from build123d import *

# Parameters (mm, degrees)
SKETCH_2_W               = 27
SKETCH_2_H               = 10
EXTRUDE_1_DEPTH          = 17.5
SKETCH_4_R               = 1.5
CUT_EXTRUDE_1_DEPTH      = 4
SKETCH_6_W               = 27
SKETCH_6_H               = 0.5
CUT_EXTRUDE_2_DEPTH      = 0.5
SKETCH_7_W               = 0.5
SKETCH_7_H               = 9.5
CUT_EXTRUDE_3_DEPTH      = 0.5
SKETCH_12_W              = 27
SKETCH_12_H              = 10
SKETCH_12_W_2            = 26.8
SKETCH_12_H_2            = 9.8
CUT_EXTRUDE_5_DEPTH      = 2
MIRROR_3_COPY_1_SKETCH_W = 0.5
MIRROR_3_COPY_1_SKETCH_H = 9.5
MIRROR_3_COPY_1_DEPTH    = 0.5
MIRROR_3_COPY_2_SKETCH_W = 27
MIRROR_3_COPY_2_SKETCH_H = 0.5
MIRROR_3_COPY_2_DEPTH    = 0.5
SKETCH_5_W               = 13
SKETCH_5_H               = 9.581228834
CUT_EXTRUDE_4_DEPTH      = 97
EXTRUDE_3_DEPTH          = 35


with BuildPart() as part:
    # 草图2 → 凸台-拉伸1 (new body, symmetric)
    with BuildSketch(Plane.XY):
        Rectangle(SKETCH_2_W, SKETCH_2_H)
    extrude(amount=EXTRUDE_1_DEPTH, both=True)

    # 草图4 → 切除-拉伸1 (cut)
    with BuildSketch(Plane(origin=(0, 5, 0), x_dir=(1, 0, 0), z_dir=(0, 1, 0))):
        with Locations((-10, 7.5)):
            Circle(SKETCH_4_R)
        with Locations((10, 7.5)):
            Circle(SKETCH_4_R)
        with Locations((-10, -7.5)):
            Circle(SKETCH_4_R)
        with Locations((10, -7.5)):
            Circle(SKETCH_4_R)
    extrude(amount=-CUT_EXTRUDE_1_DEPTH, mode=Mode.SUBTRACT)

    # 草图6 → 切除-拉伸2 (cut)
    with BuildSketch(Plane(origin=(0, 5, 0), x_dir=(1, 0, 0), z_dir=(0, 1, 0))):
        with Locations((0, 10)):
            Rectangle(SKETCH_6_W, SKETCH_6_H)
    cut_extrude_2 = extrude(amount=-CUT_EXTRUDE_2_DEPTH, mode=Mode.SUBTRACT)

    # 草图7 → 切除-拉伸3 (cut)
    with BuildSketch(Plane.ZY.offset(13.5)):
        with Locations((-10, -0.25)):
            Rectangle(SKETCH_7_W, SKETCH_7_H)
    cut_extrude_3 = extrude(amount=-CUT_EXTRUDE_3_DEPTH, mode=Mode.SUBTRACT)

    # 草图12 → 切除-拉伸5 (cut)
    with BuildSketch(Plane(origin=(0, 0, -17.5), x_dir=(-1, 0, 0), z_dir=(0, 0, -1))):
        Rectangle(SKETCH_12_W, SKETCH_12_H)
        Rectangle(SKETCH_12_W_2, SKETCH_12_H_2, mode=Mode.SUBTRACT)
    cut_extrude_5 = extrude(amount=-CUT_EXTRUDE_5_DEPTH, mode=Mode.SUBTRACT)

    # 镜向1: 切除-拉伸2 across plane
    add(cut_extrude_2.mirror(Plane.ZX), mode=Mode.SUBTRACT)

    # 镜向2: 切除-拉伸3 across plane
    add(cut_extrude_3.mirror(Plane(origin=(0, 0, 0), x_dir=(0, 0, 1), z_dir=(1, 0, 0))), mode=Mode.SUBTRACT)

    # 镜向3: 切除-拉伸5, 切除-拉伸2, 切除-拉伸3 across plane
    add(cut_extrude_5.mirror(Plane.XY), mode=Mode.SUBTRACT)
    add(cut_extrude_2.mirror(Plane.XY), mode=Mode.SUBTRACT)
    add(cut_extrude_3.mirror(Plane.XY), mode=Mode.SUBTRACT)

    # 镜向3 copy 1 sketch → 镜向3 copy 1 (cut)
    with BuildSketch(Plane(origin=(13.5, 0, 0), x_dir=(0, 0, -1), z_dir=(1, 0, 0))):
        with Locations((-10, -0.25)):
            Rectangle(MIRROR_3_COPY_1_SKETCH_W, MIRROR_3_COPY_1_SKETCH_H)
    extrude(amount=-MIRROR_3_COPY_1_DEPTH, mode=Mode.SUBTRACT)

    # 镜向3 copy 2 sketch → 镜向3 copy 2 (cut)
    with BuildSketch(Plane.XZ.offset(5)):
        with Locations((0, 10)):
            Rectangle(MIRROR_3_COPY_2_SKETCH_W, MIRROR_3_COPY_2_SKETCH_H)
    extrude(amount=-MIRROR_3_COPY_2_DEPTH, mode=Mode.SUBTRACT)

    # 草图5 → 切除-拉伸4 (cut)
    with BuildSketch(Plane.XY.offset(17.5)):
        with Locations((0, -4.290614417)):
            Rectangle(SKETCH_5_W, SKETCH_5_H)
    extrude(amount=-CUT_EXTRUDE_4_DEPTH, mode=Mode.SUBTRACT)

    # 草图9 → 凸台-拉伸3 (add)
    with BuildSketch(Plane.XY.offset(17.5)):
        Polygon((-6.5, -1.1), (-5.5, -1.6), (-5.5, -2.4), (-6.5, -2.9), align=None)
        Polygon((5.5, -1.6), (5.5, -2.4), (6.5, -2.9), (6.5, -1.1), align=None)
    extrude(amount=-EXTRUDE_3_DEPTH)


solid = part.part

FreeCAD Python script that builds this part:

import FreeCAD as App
import Part
import Sketcher
from FreeCAD import Vector
Q = App.Units.Quantity


def add_polygon(sketch, points):
    """Adds a closed chain of lines whose ends are joined by coincident constraints."""
    first, n = sketch.GeometryCount, len(points)
    for a, b in zip(points, points[1:] + points[:1]):
        sketch.addGeometry(Part.LineSegment(App.Vector(*a, 0), App.Vector(*b, 0)), False)
    for i in range(n):
        sketch.addConstraint(Sketcher.Constraint("Coincident", first + i, 2, first + (i + 1) % n, 1))

doc = App.newDocument("Part")
body = doc.addObject("PartDesign::Body", "Body")

# Sketch on XY plane
sketch1 = doc.addObject("Sketcher::SketchObject", "Sketch")
body.addObject(sketch1)
sketch1.AttachmentSupport = (doc.XY_Plane, [""])
sketch1.MapMode = "FlatFace"
add_polygon(sketch1, [(-14, 5), (-14, -5), (14, -5), (14, 5)])  # lines 0-3
sketch1.addConstraint(Sketcher.Constraint("Vertical", 0))
sketch1.addConstraint(Sketcher.Constraint("Horizontal", 1))
sketch1.addConstraint(Sketcher.Constraint("Vertical", 2))
sketch1.addConstraint(Sketcher.Constraint("Horizontal", 3))
sketch1.addConstraint(Sketcher.Constraint("Symmetric", 0, 2, 2, 2, -1, 1))
sketch1.addConstraint(Sketcher.Constraint("DistanceX", 1, 1, 1, 2, Q("27 mm")))
sketch1.addConstraint(Sketcher.Constraint("DistanceY", 0, 2, 0, 1, Q("10 mm")))
pad1 = doc.addObject("PartDesign::Pad", "Pad")
body.addObject(pad1)
pad1.Profile = sketch1
pad1.Length = 35
pad1.Midplane = True

# Sketch on XZ plane
sketch2 = doc.addObject("Sketcher::SketchObject", "Sketch001")
body.addObject(sketch2)
sketch2.AttachmentSupport = (doc.XZ_Plane, [""])
sketch2.MapMode = "FlatFace"
sketch2.AttachmentOffset = App.Placement(Vector(0, 0, -5), App.Rotation())
sketch2.addGeometry(Part.Circle(Vector(-10, -7.5, 0), Vector(0, 0, 1), 1.5), False)
sketch2.addGeometry(Part.Circle(Vector(10, -7.5, 0), Vector(0, 0, 1), 1.5), False)
sketch2.addGeometry(Part.Circle(Vector(-10, 7.5, 0), Vector(0, 0, 1), 1.5), False)
sketch2.addGeometry(Part.Circle(Vector(10, 7.5, 0), Vector(0, 0, 1), 1.5), False)
sketch2.addConstraint(Sketcher.Constraint("Equal", 0, 1))
sketch2.addConstraint(Sketcher.Constraint("Equal", 1, 2))
sketch2.addConstraint(Sketcher.Constraint("Equal", 2, 3))
sketch2.addConstraint(Sketcher.Constraint("Symmetric", 1, 3, 2, 3, -1, 1))
sketch2.addConstraint(Sketcher.Constraint("Symmetric", 0, 3, 3, 3, -1, 1))
sketch2.addConstraint(Sketcher.Constraint("Symmetric", 0, 3, 1, 3, -2))
sketch2.addConstraint(Sketcher.Constraint("Diameter", 0, Q("3 mm")))
sketch2.addConstraint(Sketcher.Constraint("DistanceX", 0, 3, -1, 1, Q("10 mm")))
sketch2.addConstraint(Sketcher.Constraint("DistanceY", 0, 3, 2, 3, Q("15 mm")))
pocket1 = doc.addObject("PartDesign::Pocket", "Pocket")
body.addObject(pocket1)
pocket1.Profile = sketch2
pocket1.Length = 4
pocket1.Reversed = True

# Sketch on XZ plane
sketch3 = doc.addObject("Sketcher::SketchObject", "Sketch002")
body.addObject(sketch3)
sketch3.AttachmentSupport = (doc.XZ_Plane, [""])
sketch3.MapMode = "FlatFace"
sketch3.AttachmentOffset = App.Placement(Vector(0, 0, -5), App.Rotation())
add_polygon(sketch3, [(-13.5, -10.2), (-13.5, -9.8), (13.5, -9.8), (13.5, -10.2)])  # lines 0-3
sketch3.addConstraint(Sketcher.Constraint("Vertical", 0))
sketch3.addConstraint(Sketcher.Constraint("Horizontal", 1))
sketch3.addConstraint(Sketcher.Constraint("Vertical", 2))
sketch3.addConstraint(Sketcher.Constraint("Horizontal", 3))
sketch3.addConstraint(Sketcher.Constraint("DistanceX", 1, 1, 1, 2, Q("27 mm")))
sketch3.addConstraint(Sketcher.Constraint("DistanceY", 0, 1, 0, 2, Q("0.5 mm")))
sketch3.addConstraint(Sketcher.Constraint("DistanceX", 0, 2, -1, 1, Q("13.5 mm")))
sketch3.addConstraint(Sketcher.Constraint("DistanceY", 0, 2, -1, 1, Q("9.75 mm")))
pocket2 = doc.addObject("PartDesign::Pocket", "Pocket001")
body.addObject(pocket2)
pocket2.Profile = sketch3
pocket2.Length = 0.5
pocket2.Reversed = True

# Sketch on YZ plane
sketch4 = doc.addObject("Sketcher::SketchObject", "Sketch003")
body.addObject(sketch4)
sketch4.AttachmentSupport = (doc.YZ_Plane, [""])
sketch4.MapMode = "FlatFace"
sketch4.AttachmentOffset = App.Placement(Vector(0, 0, -13.5), App.Rotation())
add_polygon(sketch4, [(4.5, -10.2), (-5, -10.2), (-5, -9.8), (4.5, -9.8)])  # lines 0-3
sketch4.addConstraint(Sketcher.Constraint("Horizontal", 0))
sketch4.addConstraint(Sketcher.Constraint("Vertical", 1))
sketch4.addConstraint(Sketcher.Constraint("Horizontal", 2))
sketch4.addConstraint(Sketcher.Constraint("Vertical", 3))
sketch4.addConstraint(Sketcher.Constraint("DistanceX", 0, 2, 0, 1, Q("9.5 mm")))
sketch4.addConstraint(Sketcher.Constraint("DistanceY", 1, 1, 1, 2, Q("0.5 mm")))
sketch4.addConstraint(Sketcher.Constraint("DistanceX", 0, 2, -1, 1, Q("5 mm")))
sketch4.addConstraint(Sketcher.Constraint("DistanceY", 0, 2, -1, 1, Q("10.25 mm")))
pocket3 = doc.addObject("PartDesign::Pocket", "Pocket002")
body.addObject(pocket3)
pocket3.Profile = sketch4
pocket3.Length = 0.5
pocket3.Reversed = True

# Sketch on XY plane
sketch5 = doc.addObject("Sketcher::SketchObject", "Sketch004")
body.addObject(sketch5)
sketch5.AttachmentSupport = (doc.XY_Plane, [""])
sketch5.MapMode = "FlatFace"
sketch5.AttachmentOffset = App.Placement(Vector(0, 0, -17.5), App.Rotation())
add_polygon(sketch5, [(14, 5), (14, -5), (-14, -5), (-14, 5)])  # lines 0-3
add_polygon(sketch5, [(-13, -5), (13, -5), (13, 5), (-13, 5)])  # lines 4-7
sketch5.addConstraint(Sketcher.Constraint("Vertical", 0))
sketch5.addConstraint(Sketcher.Constraint("Horizontal", 1))
sketch5.addConstraint(Sketcher.Constraint("Vertical", 2))
sketch5.addConstraint(Sketcher.Constraint("Horizontal", 3))
sketch5.addConstraint(Sketcher.Constraint("Horizontal", 4))
sketch5.addConstraint(Sketcher.Constraint("Vertical", 5))
sketch5.addConstraint(Sketcher.Constraint("Horizontal", 6))
sketch5.addConstraint(Sketcher.Constraint("Vertical", 7))
sketch5.addConstraint(Sketcher.Constraint("Symmetric", 0, 2, 2, 2, -1, 1))
sketch5.addConstraint(Sketcher.Constraint("Symmetric", 4, 2, 6, 2, -1, 1))
sketch5.addConstraint(Sketcher.Constraint("DistanceX", 1, 2, 1, 1, Q("27 mm")))
sketch5.addConstraint(Sketcher.Constraint("DistanceY", 0, 2, 0, 1, Q("10 mm")))
sketch5.addConstraint(Sketcher.Constraint("DistanceX", 4, 1, 4, 2, Q("26.8 mm")))
sketch5.addConstraint(Sketcher.Constraint("DistanceY", 5, 1, 5, 2, Q("9.8 mm")))
pocket4 = doc.addObject("PartDesign::Pocket", "Pocket003")
body.addObject(pocket4)
pocket4.Profile = sketch5
pocket4.Length = 2
pocket4.Reversed = True
doc.recompute()

mirrored = doc.addObject("PartDesign::Mirrored", "Mirrored")
body.addObject(mirrored)
mirrored.Originals = [pocket2]
mirrored.MirrorPlane = (doc.XZ_Plane, [""])
body.Tip = mirrored
doc.recompute()

mirrored2 = doc.addObject("PartDesign::Mirrored", "Mirrored001")
body.addObject(mirrored2)
mirrored2.Originals = [pocket3]
mirrored2.MirrorPlane = (doc.YZ_Plane, [""])
body.Tip = mirrored2
doc.recompute()

mirrored3 = doc.addObject("PartDesign::Mirrored", "Mirrored002")
body.addObject(mirrored3)
mirrored3.Originals = [pocket4, pocket2, pocket3]
mirrored3.MirrorPlane = (doc.XY_Plane, [""])
body.Tip = mirrored3

# Sketch on YZ plane
sketch6 = doc.addObject("Sketcher::SketchObject", "Sketch005")
body.addObject(sketch6)
sketch6.AttachmentSupport = (doc.YZ_Plane, [""])
sketch6.MapMode = "FlatFace"
sketch6.AttachmentOffset = App.Placement(Vector(0, 0, 13.5), App.Rotation())
add_polygon(sketch6, [(4.5, 10.2), (-5, 10.2), (-5, 9.8), (4.5, 9.8)])  # lines 0-3
sketch6.addConstraint(Sketcher.Constraint("Horizontal", 0))
sketch6.addConstraint(Sketcher.Constraint("Vertical", 1))
sketch6.addConstraint(Sketcher.Constraint("Horizontal", 2))
sketch6.addConstraint(Sketcher.Constraint("Vertical", 3))
sketch6.addConstraint(Sketcher.Constraint("DistanceX", 0, 2, 0, 1, Q("9.5 mm")))
sketch6.addConstraint(Sketcher.Constraint("DistanceY", 1, 2, 1, 1, Q("0.5 mm")))
sketch6.addConstraint(Sketcher.Constraint("DistanceX", 0, 2, -1, 1, Q("5 mm")))
sketch6.addConstraint(Sketcher.Constraint("DistanceY", -1, 1, 0, 2, Q("10.25 mm")))
pocket5 = doc.addObject("PartDesign::Pocket", "Pocket004")
body.addObject(pocket5)
pocket5.Profile = sketch6
pocket5.Length = 0.5

# Sketch on XZ plane
sketch7 = doc.addObject("Sketcher::SketchObject", "Sketch006")
body.addObject(sketch7)
sketch7.AttachmentSupport = (doc.XZ_Plane, [""])
sketch7.MapMode = "FlatFace"
sketch7.AttachmentOffset = App.Placement(Vector(0, 0, 5), App.Rotation())
add_polygon(sketch7, [(-13.5, 10.2), (-13.5, 9.8), (13.5, 9.8), (13.5, 10.2)])  # lines 0-3
sketch7.addConstraint(Sketcher.Constraint("Vertical", 0))
sketch7.addConstraint(Sketcher.Constraint("Horizontal", 1))
sketch7.addConstraint(Sketcher.Constraint("Vertical", 2))
sketch7.addConstraint(Sketcher.Constraint("Horizontal", 3))
sketch7.addConstraint(Sketcher.Constraint("DistanceX", 1, 1, 1, 2, Q("27 mm")))
sketch7.addConstraint(Sketcher.Constraint("DistanceY", 0, 2, 0, 1, Q("0.5 mm")))
sketch7.addConstraint(Sketcher.Constraint("DistanceX", 0, 2, -1, 1, Q("13.5 mm")))
sketch7.addConstraint(Sketcher.Constraint("DistanceY", -1, 1, 0, 2, Q("9.75 mm")))
pocket6 = doc.addObject("PartDesign::Pocket", "Pocket005")
body.addObject(pocket6)
pocket6.Profile = sketch7
pocket6.Length = 0.5

# Sketch on XY plane
sketch8 = doc.addObject("Sketcher::SketchObject", "Sketch007")
body.addObject(sketch8)
sketch8.AttachmentSupport = (doc.XY_Plane, [""])
sketch8.MapMode = "FlatFace"
sketch8.AttachmentOffset = App.Placement(Vector(0, 0, 17.5), App.Rotation())
add_polygon(sketch8, [(-6, 0), (-6, -9), (6, -9), (6, 0)])  # lines 0-3
sketch8.addConstraint(Sketcher.Constraint("Vertical", 0))
sketch8.addConstraint(Sketcher.Constraint("Horizontal", 1))
sketch8.addConstraint(Sketcher.Constraint("Vertical", 2))
sketch8.addConstraint(Sketcher.Constraint("Horizontal", 3))
sketch8.addConstraint(Sketcher.Constraint("DistanceX", 1, 1, 1, 2, Q("13 mm")))
sketch8.addConstraint(Sketcher.Constraint("DistanceX", 0, 2, -1, 1, Q("6.5 mm")))
sketch8.addConstraint(Sketcher.Constraint("DistanceY", -1, 1, 2, 2, Q("0.5 mm")))
sketch8.addConstraint(Sketcher.Constraint("DistanceY", 0, 2, 0, 1, Q("9.581229 mm")))
pocket7 = doc.addObject("PartDesign::Pocket", "Pocket006")
body.addObject(pocket7)
pocket7.Profile = sketch8
pocket7.Length = 97

# Sketch on XY plane
sketch9 = doc.addObject("Sketcher::SketchObject", "Sketch008")
body.addObject(sketch9)
sketch9.AttachmentSupport = (doc.XY_Plane, [""])
sketch9.MapMode = "FlatFace"
sketch9.AttachmentOffset = App.Placement(Vector(0, 0, 17.5), App.Rotation())
add_polygon(sketch9, [(-5.5, -1.6), (-6.5, -1.1), (-6.5, -2.9), (-5.5, -2.4)])  # lines 0-3
add_polygon(sketch9, [(5.5, -1.6), (5.5, -2.4), (6.5, -2.9), (6.5, -1.1)])  # lines 4-7
sketch9.addConstraint(Sketcher.Constraint("Vertical", 1))
sketch9.addConstraint(Sketcher.Constraint("Vertical", 3))
sketch9.addConstraint(Sketcher.Constraint("Vertical", 4))
sketch9.addConstraint(Sketcher.Constraint("Vertical", 6))
sketch9.addConstraint(Sketcher.Constraint("Symmetric", 2, 2, 4, 2, -2))
sketch9.addConstraint(Sketcher.Constraint("Symmetric", 1, 2, 5, 2, -2))
sketch9.addConstraint(Sketcher.Constraint("Parallel", 0, 5))
sketch9.addConstraint(Sketcher.Constraint("Parallel", 2, 7))
sketch9.addConstraint(Sketcher.Constraint("Horizontal", 0, 2, 6, 2))
sketch9.addConstraint(Sketcher.Constraint("DistanceY", 1, 2, 1, 1, Q("1.8 mm")))
sketch9.addConstraint(Sketcher.Constraint("DistanceY", 3, 1, 3, 2, Q("0.8 mm")))
sketch9.addConstraint(Sketcher.Constraint("DistanceX", 1, 2, 2, 2, Q("1 mm")))
sketch9.addConstraint(Sketcher.Constraint("DistanceX", 2, 2, 4, 2, Q("11 mm")))
sketch9.addConstraint(Sketcher.Constraint("DistanceY", 0, 2, -1, 1, Q("1.1 mm")))
pad2 = doc.addObject("PartDesign::Pad", "Pad001")
body.addObject(pad2)
pad2.Profile = sketch9
pad2.Length = 35
pad2.Reversed = True

doc.recompute()
